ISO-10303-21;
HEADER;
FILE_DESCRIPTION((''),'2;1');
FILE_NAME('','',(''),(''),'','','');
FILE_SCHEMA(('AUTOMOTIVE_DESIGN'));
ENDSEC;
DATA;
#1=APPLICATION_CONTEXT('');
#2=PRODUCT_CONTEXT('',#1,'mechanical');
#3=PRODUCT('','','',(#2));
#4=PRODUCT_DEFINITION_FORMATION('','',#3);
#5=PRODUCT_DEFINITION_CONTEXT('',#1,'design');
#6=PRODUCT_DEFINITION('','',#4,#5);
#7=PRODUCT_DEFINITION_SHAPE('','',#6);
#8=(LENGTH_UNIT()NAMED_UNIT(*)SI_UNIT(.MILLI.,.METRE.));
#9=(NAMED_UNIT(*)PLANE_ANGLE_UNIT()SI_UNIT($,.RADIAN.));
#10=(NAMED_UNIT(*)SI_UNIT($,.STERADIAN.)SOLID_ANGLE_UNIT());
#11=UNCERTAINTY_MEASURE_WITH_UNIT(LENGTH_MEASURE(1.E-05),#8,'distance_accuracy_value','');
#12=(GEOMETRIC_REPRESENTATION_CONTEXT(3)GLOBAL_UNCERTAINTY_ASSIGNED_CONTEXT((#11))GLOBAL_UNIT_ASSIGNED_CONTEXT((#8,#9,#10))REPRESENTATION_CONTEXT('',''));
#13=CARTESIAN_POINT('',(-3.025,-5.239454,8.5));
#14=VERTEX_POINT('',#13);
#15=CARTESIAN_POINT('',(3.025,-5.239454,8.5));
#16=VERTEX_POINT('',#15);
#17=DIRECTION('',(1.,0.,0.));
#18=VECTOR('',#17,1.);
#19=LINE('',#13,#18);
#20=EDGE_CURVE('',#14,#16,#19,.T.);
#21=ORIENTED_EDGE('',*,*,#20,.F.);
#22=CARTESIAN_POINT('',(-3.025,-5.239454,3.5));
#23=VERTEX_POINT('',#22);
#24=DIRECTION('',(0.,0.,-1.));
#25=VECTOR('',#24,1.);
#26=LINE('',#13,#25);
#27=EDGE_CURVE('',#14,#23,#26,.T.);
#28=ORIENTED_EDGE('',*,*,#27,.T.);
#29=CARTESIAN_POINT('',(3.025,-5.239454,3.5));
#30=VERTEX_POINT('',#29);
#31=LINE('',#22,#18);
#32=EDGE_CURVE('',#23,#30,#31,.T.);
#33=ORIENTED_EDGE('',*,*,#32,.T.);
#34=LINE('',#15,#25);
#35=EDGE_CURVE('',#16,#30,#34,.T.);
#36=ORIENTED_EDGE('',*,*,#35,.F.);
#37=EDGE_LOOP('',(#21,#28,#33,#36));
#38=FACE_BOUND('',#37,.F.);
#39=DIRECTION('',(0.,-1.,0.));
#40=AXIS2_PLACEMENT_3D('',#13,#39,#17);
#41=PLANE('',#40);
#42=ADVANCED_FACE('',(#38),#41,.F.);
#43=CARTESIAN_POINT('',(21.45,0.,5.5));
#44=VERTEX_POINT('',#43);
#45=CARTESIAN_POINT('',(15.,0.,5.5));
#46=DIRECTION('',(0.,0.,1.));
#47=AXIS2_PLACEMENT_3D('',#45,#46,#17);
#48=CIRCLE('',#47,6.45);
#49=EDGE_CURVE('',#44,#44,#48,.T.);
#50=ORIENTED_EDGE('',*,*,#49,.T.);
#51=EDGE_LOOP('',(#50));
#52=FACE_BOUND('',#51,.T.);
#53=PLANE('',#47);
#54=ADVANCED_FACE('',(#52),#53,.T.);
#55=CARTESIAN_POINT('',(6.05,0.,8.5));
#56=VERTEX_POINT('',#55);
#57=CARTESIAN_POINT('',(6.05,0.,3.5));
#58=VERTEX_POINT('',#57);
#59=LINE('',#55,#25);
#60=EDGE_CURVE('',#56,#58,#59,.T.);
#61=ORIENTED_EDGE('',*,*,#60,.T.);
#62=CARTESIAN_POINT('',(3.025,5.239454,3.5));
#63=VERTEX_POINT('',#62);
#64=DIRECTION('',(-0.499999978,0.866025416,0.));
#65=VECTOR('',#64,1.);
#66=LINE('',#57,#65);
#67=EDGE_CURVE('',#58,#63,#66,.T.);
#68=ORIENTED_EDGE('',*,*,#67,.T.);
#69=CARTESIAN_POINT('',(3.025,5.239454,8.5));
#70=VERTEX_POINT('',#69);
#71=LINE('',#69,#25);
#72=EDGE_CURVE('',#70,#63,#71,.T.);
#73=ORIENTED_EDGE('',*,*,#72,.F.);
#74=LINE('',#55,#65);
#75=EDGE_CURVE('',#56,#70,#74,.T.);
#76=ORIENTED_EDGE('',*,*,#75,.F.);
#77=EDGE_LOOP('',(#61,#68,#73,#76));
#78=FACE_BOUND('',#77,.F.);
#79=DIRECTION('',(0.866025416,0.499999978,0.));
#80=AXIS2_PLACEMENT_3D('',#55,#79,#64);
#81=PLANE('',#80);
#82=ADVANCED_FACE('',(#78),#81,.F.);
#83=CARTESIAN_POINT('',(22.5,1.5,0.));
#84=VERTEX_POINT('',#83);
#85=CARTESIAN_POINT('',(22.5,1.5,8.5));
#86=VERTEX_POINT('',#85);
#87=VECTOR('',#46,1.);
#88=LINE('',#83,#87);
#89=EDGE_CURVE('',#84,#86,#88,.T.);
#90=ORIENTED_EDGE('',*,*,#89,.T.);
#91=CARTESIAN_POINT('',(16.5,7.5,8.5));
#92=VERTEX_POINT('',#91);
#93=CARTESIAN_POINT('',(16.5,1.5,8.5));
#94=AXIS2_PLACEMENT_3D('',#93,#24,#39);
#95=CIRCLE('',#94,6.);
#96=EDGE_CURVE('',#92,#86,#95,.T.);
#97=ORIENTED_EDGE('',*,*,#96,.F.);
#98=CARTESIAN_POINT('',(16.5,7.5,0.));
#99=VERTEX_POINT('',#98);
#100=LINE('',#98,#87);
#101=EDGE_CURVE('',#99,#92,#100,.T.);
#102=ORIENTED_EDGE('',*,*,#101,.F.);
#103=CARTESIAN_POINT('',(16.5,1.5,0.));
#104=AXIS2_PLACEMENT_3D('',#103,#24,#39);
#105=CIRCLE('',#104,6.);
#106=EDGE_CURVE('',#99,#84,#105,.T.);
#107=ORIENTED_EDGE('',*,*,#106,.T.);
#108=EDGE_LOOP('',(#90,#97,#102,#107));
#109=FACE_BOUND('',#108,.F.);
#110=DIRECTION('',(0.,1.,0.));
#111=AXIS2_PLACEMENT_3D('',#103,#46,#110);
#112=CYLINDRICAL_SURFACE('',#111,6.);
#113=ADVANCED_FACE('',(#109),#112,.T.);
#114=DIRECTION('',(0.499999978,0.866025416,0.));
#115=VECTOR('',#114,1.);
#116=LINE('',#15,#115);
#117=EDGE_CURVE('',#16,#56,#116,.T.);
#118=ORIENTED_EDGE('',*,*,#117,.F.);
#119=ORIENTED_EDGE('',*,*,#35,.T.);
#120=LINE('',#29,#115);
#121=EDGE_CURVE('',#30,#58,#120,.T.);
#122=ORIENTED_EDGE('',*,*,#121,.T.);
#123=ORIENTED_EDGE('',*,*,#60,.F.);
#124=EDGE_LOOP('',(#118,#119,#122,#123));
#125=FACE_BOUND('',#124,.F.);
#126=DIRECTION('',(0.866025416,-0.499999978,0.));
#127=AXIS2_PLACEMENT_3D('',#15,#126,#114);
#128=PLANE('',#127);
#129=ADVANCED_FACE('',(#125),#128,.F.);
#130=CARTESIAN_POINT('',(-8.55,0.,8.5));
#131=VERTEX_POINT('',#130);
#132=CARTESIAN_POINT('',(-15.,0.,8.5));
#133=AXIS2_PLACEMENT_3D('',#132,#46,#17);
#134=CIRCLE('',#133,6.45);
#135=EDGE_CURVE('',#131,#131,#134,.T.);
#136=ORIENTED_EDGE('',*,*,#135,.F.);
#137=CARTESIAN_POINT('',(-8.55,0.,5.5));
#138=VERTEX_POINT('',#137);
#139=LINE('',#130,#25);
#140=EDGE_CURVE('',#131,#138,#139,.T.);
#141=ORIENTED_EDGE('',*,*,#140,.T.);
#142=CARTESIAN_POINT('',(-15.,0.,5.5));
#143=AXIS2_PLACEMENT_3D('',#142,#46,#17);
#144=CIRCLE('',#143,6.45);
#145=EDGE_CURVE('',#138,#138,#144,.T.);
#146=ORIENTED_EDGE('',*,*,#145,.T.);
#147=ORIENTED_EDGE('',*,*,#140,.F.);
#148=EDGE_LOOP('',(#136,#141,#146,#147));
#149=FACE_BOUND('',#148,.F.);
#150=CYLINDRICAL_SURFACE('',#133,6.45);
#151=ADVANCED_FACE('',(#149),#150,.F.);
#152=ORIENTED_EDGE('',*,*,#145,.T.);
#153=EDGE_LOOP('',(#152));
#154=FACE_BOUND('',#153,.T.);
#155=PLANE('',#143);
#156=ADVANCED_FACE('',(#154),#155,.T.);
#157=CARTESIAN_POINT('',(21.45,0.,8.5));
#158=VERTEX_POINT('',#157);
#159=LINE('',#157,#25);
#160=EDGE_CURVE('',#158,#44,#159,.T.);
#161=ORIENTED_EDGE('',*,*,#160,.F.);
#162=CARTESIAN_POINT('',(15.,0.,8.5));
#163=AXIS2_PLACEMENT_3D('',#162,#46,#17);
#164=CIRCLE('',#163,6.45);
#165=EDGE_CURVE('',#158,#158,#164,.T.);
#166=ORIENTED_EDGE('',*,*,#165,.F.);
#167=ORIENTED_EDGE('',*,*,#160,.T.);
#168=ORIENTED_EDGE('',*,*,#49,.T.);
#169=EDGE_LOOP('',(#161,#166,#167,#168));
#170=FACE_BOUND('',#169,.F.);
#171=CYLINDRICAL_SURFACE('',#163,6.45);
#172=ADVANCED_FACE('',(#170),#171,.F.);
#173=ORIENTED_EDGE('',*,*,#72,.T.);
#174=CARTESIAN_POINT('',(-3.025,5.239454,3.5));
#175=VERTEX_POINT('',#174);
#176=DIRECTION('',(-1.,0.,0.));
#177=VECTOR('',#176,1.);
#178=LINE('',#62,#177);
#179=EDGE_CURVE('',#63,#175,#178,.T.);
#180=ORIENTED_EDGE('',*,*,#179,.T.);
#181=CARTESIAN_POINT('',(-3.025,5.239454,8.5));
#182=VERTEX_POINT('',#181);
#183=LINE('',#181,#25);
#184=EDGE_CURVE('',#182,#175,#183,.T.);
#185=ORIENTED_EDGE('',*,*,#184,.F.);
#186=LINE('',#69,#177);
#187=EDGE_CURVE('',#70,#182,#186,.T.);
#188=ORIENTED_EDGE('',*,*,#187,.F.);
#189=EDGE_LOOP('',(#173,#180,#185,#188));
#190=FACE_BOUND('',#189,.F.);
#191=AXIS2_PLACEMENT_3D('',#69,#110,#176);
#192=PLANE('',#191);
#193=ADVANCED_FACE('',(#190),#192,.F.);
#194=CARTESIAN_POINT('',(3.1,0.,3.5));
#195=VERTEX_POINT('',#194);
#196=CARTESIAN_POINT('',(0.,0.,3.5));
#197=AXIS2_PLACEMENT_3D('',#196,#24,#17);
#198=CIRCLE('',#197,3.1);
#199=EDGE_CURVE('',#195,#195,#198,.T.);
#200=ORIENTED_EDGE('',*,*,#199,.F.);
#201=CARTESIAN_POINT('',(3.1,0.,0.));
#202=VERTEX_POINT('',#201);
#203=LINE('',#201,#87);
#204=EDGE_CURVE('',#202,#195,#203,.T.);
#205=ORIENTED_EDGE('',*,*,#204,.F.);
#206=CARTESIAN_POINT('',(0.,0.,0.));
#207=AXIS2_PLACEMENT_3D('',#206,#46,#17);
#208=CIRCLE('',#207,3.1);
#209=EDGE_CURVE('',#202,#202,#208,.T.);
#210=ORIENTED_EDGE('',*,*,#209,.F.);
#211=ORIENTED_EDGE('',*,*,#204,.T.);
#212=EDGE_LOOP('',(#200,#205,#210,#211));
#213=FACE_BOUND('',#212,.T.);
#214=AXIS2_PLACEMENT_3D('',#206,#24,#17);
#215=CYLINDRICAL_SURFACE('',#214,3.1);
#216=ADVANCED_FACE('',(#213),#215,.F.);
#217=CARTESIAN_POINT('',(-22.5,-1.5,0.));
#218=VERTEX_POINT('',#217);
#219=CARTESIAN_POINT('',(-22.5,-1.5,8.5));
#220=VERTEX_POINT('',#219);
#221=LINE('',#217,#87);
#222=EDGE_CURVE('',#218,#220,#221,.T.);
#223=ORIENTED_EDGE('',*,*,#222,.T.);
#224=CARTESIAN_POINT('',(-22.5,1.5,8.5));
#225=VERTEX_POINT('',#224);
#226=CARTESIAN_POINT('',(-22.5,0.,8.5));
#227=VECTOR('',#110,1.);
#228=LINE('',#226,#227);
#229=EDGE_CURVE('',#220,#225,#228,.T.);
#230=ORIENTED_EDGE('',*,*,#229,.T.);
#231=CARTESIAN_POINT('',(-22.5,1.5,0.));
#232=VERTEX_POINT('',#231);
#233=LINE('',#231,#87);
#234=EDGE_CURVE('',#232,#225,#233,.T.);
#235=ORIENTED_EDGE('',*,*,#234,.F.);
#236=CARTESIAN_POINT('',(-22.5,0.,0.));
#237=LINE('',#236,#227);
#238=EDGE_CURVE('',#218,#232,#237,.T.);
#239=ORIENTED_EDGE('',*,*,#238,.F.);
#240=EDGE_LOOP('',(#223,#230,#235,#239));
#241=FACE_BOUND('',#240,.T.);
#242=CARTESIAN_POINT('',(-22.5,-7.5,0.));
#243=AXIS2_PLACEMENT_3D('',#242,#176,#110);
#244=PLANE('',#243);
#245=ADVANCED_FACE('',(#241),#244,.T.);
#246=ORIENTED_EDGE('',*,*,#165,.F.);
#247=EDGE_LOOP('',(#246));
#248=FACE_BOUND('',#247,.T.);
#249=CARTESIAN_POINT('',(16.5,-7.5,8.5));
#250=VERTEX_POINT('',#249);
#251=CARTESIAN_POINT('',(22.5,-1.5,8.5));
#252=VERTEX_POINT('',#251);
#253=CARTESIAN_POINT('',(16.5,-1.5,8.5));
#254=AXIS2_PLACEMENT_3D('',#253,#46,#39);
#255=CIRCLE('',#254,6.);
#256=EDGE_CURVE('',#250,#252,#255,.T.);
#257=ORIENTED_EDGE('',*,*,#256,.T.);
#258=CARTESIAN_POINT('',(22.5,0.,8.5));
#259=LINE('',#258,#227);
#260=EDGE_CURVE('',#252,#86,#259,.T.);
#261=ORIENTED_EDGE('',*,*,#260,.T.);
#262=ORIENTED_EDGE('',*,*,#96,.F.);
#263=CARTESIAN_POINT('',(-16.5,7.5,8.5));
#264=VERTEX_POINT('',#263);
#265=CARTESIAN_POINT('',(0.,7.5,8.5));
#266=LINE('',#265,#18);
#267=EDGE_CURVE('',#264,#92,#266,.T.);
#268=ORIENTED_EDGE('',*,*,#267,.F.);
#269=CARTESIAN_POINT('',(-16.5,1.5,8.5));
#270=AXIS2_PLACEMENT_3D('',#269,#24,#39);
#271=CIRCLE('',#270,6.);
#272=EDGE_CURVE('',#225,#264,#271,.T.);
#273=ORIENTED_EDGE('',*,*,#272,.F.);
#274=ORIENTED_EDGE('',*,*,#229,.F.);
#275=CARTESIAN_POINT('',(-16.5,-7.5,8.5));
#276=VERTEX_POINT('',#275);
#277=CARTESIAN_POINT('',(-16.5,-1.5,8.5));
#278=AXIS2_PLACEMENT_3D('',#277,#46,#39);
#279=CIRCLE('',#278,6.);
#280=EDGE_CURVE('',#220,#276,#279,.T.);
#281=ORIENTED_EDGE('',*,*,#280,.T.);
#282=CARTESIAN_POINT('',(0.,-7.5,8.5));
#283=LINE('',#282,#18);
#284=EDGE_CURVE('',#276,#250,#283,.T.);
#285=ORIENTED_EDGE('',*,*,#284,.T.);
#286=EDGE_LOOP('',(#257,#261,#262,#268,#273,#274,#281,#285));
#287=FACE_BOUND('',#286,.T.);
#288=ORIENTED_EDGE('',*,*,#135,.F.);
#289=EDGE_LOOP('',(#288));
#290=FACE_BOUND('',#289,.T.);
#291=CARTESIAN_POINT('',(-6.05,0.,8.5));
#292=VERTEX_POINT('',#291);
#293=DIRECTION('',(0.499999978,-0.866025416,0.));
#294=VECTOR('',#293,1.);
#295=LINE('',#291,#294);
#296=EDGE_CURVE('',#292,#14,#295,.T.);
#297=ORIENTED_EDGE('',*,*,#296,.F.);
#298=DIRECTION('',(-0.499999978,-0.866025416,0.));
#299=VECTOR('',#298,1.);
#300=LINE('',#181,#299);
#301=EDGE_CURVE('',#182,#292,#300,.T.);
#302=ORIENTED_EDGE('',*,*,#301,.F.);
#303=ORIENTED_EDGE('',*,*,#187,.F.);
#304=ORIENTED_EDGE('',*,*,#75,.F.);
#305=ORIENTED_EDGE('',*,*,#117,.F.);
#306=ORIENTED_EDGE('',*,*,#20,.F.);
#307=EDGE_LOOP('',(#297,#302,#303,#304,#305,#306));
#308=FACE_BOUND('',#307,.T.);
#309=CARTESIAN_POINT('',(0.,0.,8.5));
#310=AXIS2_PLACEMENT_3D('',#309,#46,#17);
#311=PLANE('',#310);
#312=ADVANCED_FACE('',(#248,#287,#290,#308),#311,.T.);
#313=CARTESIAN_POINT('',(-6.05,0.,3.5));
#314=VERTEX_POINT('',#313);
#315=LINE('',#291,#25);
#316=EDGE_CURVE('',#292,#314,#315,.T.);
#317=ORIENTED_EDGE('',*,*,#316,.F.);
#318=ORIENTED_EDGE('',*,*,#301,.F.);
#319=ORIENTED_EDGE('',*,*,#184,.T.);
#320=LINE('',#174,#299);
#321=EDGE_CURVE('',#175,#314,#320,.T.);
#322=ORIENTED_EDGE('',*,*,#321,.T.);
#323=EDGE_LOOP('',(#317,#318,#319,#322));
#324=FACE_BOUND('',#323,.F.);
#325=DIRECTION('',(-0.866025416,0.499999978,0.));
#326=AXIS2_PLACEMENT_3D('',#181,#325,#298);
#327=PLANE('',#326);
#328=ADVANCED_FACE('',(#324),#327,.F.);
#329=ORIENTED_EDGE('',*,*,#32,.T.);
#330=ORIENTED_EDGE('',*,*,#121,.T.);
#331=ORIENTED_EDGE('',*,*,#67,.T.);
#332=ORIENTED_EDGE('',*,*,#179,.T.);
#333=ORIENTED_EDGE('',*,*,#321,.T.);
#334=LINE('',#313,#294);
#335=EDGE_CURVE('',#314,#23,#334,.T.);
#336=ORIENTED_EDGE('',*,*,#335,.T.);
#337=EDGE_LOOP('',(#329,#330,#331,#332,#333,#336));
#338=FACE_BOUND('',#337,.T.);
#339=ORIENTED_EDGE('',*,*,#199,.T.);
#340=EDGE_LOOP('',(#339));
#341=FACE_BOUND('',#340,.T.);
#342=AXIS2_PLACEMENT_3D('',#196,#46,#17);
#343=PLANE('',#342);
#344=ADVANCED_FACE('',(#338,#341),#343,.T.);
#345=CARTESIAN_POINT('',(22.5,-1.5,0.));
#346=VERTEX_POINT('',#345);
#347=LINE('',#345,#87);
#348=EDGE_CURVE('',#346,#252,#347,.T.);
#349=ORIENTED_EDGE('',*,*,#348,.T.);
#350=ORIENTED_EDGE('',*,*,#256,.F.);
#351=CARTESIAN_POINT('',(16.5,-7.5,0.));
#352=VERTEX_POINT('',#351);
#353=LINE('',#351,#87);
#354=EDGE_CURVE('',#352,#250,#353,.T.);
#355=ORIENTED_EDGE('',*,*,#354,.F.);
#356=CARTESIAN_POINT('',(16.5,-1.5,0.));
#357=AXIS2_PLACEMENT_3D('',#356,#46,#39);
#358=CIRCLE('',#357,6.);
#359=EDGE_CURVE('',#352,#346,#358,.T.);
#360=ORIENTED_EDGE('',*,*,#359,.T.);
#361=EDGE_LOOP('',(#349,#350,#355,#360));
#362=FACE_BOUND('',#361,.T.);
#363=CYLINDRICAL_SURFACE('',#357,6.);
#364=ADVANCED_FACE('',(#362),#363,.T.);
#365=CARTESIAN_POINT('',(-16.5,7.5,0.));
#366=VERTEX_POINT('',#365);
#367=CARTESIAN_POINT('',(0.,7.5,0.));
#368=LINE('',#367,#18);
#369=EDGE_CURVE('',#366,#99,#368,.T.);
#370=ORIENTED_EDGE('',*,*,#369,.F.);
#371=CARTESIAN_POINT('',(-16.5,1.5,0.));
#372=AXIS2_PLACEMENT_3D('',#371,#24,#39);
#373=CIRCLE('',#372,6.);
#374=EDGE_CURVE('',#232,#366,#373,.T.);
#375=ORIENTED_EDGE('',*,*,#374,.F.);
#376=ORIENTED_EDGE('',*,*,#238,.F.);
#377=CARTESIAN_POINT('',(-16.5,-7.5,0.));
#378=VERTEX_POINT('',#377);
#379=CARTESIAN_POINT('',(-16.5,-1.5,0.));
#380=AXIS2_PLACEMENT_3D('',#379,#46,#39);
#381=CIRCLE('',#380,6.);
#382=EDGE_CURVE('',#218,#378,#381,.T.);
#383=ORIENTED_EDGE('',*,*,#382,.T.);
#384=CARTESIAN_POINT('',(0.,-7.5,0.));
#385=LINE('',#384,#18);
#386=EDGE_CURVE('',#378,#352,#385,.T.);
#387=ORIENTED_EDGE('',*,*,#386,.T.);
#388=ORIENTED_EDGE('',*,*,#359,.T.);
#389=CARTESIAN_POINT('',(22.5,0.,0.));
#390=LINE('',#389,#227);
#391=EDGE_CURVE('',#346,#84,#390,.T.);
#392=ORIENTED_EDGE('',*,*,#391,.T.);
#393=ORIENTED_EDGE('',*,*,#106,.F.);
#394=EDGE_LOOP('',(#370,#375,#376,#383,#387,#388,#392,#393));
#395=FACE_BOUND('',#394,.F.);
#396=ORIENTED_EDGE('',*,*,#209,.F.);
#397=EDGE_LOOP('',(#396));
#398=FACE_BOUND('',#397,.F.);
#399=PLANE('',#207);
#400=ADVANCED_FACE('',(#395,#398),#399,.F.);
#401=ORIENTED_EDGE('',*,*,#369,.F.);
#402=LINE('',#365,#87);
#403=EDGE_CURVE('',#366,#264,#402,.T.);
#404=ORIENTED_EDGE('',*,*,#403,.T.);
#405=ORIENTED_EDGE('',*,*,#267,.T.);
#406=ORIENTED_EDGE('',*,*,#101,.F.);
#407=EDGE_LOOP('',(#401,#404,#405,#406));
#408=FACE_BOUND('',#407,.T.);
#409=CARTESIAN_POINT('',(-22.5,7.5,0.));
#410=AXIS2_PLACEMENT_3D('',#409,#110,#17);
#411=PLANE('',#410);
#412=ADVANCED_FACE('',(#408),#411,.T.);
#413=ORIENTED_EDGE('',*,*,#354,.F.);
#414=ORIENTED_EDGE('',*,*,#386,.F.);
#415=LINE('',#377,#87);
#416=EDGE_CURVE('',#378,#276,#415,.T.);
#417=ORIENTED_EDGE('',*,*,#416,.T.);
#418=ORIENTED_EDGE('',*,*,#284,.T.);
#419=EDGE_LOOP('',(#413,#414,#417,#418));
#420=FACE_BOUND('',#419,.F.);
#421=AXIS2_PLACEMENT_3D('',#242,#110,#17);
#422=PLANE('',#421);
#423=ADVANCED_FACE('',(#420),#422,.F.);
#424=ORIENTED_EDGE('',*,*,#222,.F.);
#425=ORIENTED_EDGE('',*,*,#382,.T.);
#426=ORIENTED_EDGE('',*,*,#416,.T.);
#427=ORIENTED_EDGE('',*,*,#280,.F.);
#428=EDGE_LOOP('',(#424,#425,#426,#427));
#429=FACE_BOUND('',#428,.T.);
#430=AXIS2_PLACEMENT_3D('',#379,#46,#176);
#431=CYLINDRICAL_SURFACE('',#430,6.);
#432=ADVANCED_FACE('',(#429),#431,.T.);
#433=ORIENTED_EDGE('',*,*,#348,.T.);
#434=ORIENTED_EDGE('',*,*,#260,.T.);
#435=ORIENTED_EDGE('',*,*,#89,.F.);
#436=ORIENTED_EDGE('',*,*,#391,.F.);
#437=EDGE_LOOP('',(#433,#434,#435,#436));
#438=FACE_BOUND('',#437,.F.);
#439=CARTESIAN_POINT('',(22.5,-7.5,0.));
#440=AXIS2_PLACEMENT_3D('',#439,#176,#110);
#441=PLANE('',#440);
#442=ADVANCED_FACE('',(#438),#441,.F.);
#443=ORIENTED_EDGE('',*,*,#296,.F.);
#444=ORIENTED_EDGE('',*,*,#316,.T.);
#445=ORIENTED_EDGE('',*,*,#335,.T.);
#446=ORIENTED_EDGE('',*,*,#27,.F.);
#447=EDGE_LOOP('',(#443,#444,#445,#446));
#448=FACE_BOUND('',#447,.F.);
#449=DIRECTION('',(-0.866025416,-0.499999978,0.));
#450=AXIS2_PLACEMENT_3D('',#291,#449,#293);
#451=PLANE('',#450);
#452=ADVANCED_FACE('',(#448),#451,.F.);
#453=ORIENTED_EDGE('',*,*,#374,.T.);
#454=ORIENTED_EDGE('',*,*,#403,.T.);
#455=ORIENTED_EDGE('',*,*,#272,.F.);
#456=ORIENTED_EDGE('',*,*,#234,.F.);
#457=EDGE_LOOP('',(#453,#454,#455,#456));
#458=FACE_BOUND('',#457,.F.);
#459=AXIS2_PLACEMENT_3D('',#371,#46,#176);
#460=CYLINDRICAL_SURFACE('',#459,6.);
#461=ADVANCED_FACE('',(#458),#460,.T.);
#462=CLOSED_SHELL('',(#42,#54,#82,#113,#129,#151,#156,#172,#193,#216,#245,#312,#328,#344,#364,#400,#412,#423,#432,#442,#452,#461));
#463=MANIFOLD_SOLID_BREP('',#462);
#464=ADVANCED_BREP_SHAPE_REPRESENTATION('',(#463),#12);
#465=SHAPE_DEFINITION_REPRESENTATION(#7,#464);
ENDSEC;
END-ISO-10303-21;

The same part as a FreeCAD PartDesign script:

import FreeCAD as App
import Part
import Sketcher
from FreeCAD import Vector
Q = App.Units.Quantity


def edges_at(feature, points):
    """Names of the edges that pass closest to the given points."""
    edges = feature.Shape.Edges
    near = lambda p: min(range(len(edges)), key=lambda i: edges[i].distToShape(Part.Vertex(*p))[0])
    return sorted({f"Edge{near(p) + 1}" for p in points})

doc = App.newDocument("Part")
body = doc.addObject("PartDesign::Body", "Body")

sketch1 = doc.addObject("Sketcher::SketchObject", "Sketch")
body.addObject(sketch1)
sketch1.AttachmentSupport = (doc.XY_Plane, [""])
sketch1.MapMode = "FlatFace"
sketch1.addGeometry([
    Part.LineSegment(Vector(-22.5, 7.5, 0), Vector(-22.5, -7.5, 0)),
    Part.LineSegment(Vector(-22.5, -7.5, 0), Vector(22.5, -7.5, 0)),
    Part.LineSegment(Vector(22.5, -7.5, 0), Vector(22.5, 7.5, 0)),
    Part.LineSegment(Vector(22.5, 7.5, 0), Vector(-22.5, 7.5, 0)),
    Part.Circle(Vector(0, 0, 0), Vector(0, 0, 1), 3.1),
], False)
sketch1.addConstraint([
    Sketcher.Constraint("Coincident", 0, 2, 1, 1),
    Sketcher.Constraint("Coincident", 1, 2, 2, 1),
    Sketcher.Constraint("Coincident", 2, 2, 3, 1),
    Sketcher.Constraint("Coincident", 3, 2, 0, 1),
    Sketcher.Constraint("Vertical", 0),
    Sketcher.Constraint("Horizontal", 1),
    Sketcher.Constraint("Vertical", 2),
    Sketcher.Constraint("Horizontal", 3),
    Sketcher.Constraint("Coincident", 4, 3, -1, 1),
    Sketcher.Constraint("Symmetric", 0, 2, 2, 2, -1, 1),
    Sketcher.Constraint("Diameter", 4, 6.2),
    Sketcher.Constraint("DistanceX", 1, 1, 1, 2, 45.0),
    Sketcher.Constraint("DistanceY", 0, 2, 0, 1, 15.0),
])
pad1 = doc.addObject("PartDesign::Pad", "Pad")
body.addObject(pad1)
pad1.Profile = sketch1
pad1.Length = 8.5

sketch2 = doc.addObject("Sketcher::SketchObject", "Sketch001")
body.addObject(sketch2)
sketch2.AttachmentSupport = (doc.XY_Plane, [""])
sketch2.MapMode = "FlatFace"
sketch2.AttachmentOffset = App.Placement(Vector(0, 0, 8.5), App.Rotation())
sketch2.addGeometry([
    Part.LineSegment(Vector(3, -5, 0), Vector(6, 0, 0)),
    Part.LineSegment(Vector(6, 0, 0), Vector(3, 5, 0)),
    Part.LineSegment(Vector(3, 5, 0), Vector(-3, 5, 0)),
    Part.LineSegment(Vector(-3, 5, 0), Vector(-6, 0, 0)),
    Part.LineSegment(Vector(-6, 0, 0), Vector(-3, -5, 0)),
    Part.LineSegment(Vector(-3, -5, 0), Vector(3, -5, 0)),
], False)
sketch2.addConstraint([
    Sketcher.Constraint("Coincident", 0, 2, 1, 1),
    Sketcher.Constraint("Coincident", 1, 2, 2, 1),
    Sketcher.Constraint("Coincident", 2, 2, 3, 1),
    Sketcher.Constraint("Coincident", 3, 2, 4, 1),
    Sketcher.Constraint("Coincident", 4, 2, 5, 1),
    Sketcher.Constraint("Coincident", 5, 2, 0, 1),
    Sketcher.Constraint("Horizontal", 2),
    Sketcher.Constraint("Horizontal", 5),
    Sketcher.Constraint("Symmetric", 0, 2, 3, 2, -1, 1),
    Sketcher.Constraint("Symmetric", 1, 2, 4, 2, -1, 1),
    Sketcher.Constraint("PointOnObject", 0, 2, -1),
    Sketcher.Constraint("Parallel", 0, 3),
    Sketcher.Constraint("Vertical", 2, 2, 4, 2),
    Sketcher.Constraint("Angle", 0, Q("60.000001 deg")),
    Sketcher.Constraint("DistanceX", 2, 2, 2, 1, 6.05),
    Sketcher.Constraint("DistanceX", 3, 2, 0, 2, 12.1),
])
pocket1 = doc.addObject("PartDesign::Pocket", "Pocket")
body.addObject(pocket1)
pocket1.Profile = sketch2
pocket1.Length = 5

sketch3 = doc.addObject("Sketcher::SketchObject", "Sketch002")
body.addObject(sketch3)
sketch3.AttachmentSupport = (doc.XY_Plane, [""])
sketch3.MapMode = "FlatFace"
sketch3.AttachmentOffset = App.Placement(Vector(0, 0, 8.5), App.Rotation())
sketch3.addGeometry([
    Part.Circle(Vector(15, 0, 0), Vector(0, 0, 1), 6),
    Part.Circle(Vector(-15, 0, 0), Vector(0, 0, 1), 6),
], False)
sketch3.addConstraint([
    Sketcher.Constraint("Equal", 0, 1),
    Sketcher.Constraint("Symmetric", 0, 3, 1, 3, -1, 1),
    Sketcher.Constraint("PointOnObject", 0, 3, -1),
    Sketcher.Constraint("Diameter", 0, 12.9),
    Sketcher.Constraint("DistanceX", -1, 1, 0, 3, 15.0),
])
pocket2 = doc.addObject("PartDesign::Pocket", "Pocket001")
body.addObject(pocket2)
pocket2.Profile = sketch3
pocket2.Length = 3
doc.recompute()

fillet = doc.addObject("PartDesign::Fillet", "Fillet")
body.addObject(fillet)
fillet.Base = (pocket2, edges_at(pocket2, [
    (-22.5, -7.5, 4.25),
    (-22.5, 7.5, 4.25),
    (22.5, 7.5, 4.25),
    (22.5, -7.5, 4.25),
]))
fillet.Radius = 6

doc.recompute()
